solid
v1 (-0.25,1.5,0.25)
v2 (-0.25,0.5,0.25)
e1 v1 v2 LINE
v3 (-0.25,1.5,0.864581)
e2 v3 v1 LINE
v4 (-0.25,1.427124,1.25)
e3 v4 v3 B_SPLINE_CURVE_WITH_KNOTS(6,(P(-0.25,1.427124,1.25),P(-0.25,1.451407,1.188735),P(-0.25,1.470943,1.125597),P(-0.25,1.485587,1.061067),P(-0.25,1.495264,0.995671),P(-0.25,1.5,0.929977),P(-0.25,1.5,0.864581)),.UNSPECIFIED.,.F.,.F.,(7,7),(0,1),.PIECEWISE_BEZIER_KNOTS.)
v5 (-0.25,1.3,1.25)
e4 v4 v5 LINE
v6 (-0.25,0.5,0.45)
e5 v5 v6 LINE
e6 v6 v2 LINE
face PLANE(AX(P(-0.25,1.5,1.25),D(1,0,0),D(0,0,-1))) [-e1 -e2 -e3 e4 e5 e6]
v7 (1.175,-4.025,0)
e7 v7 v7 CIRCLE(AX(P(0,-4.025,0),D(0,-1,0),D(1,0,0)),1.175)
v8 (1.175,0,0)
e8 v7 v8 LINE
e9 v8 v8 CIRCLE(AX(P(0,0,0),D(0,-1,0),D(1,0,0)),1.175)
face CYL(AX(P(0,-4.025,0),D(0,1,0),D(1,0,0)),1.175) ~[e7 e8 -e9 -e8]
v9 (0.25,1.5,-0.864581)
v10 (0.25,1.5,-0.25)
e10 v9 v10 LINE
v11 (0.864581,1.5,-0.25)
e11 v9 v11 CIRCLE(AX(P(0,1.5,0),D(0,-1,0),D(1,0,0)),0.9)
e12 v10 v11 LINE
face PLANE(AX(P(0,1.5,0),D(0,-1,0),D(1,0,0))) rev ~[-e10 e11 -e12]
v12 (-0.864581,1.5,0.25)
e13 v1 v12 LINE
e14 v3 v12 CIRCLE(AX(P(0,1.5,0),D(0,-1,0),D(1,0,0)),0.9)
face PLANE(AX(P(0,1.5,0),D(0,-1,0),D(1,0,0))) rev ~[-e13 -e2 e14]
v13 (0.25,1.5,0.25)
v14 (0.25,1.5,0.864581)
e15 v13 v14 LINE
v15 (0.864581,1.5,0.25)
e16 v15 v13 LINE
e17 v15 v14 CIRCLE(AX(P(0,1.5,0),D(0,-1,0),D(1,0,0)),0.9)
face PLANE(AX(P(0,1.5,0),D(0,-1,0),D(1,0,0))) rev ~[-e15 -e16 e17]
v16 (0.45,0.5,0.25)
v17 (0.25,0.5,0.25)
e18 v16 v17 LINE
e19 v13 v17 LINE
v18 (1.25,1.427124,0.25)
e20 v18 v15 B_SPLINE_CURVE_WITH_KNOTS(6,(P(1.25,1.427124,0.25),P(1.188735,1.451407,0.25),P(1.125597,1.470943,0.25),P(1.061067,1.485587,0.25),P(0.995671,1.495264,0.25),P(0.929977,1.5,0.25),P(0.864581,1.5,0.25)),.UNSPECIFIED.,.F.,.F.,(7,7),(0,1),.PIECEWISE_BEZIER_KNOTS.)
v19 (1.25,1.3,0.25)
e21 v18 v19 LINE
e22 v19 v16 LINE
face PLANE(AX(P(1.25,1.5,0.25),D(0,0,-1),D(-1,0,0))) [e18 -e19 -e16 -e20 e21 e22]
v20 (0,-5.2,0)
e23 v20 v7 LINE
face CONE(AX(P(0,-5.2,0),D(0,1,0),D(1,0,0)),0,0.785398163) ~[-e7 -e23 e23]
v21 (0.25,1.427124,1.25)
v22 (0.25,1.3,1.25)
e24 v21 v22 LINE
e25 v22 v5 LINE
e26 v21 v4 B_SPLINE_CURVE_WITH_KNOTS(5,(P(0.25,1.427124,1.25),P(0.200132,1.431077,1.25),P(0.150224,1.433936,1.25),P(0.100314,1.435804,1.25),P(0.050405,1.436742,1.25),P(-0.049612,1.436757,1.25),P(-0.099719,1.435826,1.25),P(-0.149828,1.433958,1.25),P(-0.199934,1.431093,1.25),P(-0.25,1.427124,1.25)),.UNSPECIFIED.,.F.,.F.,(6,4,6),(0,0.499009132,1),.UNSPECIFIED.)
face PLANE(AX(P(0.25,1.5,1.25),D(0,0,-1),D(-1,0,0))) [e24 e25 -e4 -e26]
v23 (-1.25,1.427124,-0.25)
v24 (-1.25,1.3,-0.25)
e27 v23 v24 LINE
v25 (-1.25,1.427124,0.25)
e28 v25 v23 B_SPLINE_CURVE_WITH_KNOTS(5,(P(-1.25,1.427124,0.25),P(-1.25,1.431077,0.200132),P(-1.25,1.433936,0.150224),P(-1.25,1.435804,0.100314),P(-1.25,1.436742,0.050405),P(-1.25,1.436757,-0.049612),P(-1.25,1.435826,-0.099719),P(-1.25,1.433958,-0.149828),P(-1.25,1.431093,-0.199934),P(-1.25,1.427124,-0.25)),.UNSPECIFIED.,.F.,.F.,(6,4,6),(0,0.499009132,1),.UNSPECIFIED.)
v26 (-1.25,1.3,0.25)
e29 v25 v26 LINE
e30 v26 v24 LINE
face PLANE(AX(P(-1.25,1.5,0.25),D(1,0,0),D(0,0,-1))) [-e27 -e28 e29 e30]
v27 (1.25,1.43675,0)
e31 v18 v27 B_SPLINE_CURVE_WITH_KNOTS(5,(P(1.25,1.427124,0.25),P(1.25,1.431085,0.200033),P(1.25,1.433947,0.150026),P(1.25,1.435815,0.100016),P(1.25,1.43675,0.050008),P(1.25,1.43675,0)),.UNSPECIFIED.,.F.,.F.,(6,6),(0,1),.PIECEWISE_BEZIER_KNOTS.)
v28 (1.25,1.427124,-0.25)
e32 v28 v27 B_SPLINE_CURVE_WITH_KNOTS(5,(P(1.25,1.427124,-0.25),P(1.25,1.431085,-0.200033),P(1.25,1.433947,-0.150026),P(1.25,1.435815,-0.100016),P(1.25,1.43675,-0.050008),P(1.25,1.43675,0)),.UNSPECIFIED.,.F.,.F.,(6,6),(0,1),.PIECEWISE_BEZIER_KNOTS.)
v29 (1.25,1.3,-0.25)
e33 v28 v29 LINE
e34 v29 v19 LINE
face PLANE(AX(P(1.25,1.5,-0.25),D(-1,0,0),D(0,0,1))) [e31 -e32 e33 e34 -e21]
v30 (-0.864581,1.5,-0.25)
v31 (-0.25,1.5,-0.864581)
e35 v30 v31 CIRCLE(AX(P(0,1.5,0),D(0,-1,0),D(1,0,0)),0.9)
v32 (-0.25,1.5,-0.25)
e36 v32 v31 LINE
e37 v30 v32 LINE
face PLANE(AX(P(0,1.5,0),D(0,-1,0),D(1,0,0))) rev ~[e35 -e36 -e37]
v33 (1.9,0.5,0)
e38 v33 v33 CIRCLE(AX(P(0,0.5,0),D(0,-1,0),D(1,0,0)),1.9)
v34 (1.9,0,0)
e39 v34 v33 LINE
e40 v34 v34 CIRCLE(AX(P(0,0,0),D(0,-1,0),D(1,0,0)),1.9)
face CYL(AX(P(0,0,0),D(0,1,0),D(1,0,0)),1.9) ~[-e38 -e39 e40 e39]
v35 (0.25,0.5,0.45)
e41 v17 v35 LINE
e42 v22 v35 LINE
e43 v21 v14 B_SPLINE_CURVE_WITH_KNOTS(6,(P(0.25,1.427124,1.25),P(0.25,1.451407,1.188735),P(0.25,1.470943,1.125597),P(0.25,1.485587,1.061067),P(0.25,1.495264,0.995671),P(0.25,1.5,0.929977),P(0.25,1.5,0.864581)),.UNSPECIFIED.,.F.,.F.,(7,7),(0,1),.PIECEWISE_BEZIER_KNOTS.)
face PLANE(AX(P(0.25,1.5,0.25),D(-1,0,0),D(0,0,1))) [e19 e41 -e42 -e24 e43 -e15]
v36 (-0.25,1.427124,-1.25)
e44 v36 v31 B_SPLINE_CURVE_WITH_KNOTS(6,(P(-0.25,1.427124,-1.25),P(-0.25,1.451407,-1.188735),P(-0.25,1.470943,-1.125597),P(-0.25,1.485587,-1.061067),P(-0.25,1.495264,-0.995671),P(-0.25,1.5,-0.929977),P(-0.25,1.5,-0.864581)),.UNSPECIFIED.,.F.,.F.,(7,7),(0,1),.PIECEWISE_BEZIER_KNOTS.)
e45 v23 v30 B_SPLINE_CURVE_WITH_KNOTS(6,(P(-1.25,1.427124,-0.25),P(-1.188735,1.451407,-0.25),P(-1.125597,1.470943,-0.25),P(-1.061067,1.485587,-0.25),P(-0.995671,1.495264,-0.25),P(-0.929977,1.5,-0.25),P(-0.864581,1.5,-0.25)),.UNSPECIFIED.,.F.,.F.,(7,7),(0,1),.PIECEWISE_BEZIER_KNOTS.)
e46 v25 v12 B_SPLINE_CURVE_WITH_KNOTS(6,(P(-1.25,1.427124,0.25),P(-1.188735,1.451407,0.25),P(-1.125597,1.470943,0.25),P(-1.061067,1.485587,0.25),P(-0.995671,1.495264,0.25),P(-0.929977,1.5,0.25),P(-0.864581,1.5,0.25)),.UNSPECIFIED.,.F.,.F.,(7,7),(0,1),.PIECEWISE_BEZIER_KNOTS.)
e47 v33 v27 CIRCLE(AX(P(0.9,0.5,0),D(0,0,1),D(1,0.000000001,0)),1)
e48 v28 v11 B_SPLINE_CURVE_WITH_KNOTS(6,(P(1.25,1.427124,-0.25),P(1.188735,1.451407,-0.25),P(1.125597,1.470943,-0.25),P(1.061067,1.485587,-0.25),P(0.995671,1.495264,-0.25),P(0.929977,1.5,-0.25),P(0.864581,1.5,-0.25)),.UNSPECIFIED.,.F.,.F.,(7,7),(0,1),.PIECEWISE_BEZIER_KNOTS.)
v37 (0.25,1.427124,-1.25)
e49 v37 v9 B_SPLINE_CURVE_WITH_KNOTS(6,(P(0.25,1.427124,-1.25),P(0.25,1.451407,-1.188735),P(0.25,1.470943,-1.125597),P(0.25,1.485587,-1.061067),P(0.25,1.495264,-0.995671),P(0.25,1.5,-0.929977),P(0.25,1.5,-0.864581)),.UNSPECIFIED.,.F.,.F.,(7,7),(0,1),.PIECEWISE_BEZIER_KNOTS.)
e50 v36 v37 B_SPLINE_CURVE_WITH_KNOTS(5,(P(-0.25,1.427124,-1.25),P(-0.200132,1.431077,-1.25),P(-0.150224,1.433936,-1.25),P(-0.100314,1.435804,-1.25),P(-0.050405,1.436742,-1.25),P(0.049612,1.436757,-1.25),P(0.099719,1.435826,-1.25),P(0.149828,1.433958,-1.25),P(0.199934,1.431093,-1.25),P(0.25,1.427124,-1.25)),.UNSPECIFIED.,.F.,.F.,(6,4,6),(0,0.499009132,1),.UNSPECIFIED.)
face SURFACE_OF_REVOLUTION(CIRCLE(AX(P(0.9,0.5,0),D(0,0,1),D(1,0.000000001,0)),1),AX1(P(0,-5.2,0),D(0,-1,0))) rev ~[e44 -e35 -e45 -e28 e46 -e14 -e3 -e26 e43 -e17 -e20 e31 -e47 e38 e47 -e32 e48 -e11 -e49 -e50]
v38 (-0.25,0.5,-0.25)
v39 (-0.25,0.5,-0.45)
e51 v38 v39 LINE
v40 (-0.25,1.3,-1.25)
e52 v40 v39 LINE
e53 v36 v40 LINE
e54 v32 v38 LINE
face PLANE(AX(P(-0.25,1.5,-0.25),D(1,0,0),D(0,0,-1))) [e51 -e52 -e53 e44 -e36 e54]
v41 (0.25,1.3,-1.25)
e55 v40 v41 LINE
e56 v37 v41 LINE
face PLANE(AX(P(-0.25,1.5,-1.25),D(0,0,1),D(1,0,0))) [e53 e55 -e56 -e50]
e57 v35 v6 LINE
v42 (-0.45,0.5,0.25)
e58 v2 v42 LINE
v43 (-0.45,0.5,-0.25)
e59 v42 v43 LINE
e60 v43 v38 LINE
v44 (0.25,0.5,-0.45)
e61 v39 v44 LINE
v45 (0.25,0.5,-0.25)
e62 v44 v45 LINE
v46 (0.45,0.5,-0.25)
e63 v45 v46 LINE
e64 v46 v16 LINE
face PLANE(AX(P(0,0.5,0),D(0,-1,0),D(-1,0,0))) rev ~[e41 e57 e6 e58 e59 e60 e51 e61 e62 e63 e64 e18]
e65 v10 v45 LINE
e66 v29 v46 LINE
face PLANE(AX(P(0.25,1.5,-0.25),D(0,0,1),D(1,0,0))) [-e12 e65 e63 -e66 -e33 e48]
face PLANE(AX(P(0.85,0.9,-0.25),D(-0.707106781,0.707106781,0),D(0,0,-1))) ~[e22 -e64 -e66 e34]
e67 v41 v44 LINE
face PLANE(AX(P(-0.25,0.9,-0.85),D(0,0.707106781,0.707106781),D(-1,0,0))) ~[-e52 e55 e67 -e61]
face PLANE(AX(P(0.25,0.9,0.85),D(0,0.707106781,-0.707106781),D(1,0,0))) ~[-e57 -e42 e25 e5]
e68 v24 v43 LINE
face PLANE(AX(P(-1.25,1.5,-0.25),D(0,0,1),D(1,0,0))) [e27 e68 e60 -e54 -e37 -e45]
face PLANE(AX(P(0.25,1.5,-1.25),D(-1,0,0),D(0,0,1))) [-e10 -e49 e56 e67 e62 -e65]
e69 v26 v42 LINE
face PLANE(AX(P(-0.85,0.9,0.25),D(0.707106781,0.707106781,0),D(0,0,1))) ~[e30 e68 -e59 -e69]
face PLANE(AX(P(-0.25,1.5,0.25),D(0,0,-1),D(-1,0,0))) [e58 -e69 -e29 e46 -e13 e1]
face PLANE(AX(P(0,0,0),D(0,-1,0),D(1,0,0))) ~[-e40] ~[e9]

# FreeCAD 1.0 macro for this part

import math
import FreeCAD as App
import Part
import Sketcher
Q = App.Units.Quantity


def edges_at(feature, points):
    """Names of the edges that pass closest to the given points."""
    edges = feature.Shape.Edges
    near = lambda p: min(range(len(edges)), key=lambda i: edges[i].distToShape(Part.Vertex(*p))[0])
    return sorted({f"Edge{near(p) + 1}" for p in points})

doc = App.newDocument("Part")
params = doc.addObject("Spreadsheet::Sheet", "Params")
for row, (alias, value) in enumerate([
    ("sketch1_radius", "1 mm"),
    ("sketch1_width", "0.9 mm"),
    ("sketch1_height", "0.5 mm"),
    ("sketch1_height2", "6.7 mm"),
    ("revolution_angle", "360 deg"),
    ("sketch2_width", "1 mm"),
    ("sketch2_width2", "0.5 mm"),
    ("pocket1_length", "1 mm"),
    ("chamfer_size", "0.8 mm"),
], start=1):
    params.set(f"A{row}", alias)
    params.set(f"B{row}", "=" + value)
    params.setAlias(f"B{row}", alias)

body = doc.addObject("PartDesign::Body", "Body")

sketch1 = doc.addObject("Sketcher::SketchObject", "Sketch")
body.addObject(sketch1)
sketch1.AttachmentSupport = (doc.XY_Plane, [""])
sketch1.MapMode = "FlatFace"
sketch1.addGeometry(Part.LineSegment(App.Vector(1.2, 0, 0), App.Vector(1.9, 0, 0)), False)
sketch1.addGeometry(Part.LineSegment(App.Vector(1.9, 0, 0), App.Vector(1.9, 0.5, 0)), False)
sketch1.addGeometry(Part.ArcOfCircle(Part.Circle(App.Vector(0.9, 0.5, 0), App.Vector(0, 0, 1), 1), math.radians(0), math.radians(90)), False)
sketch1.addGeometry(Part.LineSegment(App.Vector(0.9, 1.5, 0), App.Vector(0, 1.5, 0)), False)
sketch1.addGeometry(Part.LineSegment(App.Vector(0, 1.5, 0), App.Vector(0, -5.2, 0)), False)
sketch1.addGeometry(Part.LineSegment(App.Vector(0, -5.2, 0), App.Vector(1.2, -4, 0)), False)
sketch1.addGeometry(Part.LineSegment(App.Vector(1.2, -4, 0), App.Vector(1.2, 0, 0)), False)
sketch1.addConstraint(Sketcher.Constraint("Coincident", 0, 2, 1, 1))
sketch1.addConstraint(Sketcher.Constraint("Tangent", 1, 2, 2, 1))
sketch1.addConstraint(Sketcher.Constraint("Tangent", 2, 2, 3, 1))
sketch1.addConstraint(Sketcher.Constraint("Coincident", 3, 2, 4, 1))
sketch1.addConstraint(Sketcher.Constraint("Coincident", 4, 2, 5, 1))
sketch1.addConstraint(Sketcher.Constraint("Coincident", 5, 2, 6, 1))
sketch1.addConstraint(Sketcher.Constraint("Coincident", 6, 2, 0, 1))
sketch1.addConstraint(Sketcher.Constraint("Horizontal", 0))
sketch1.addConstraint(Sketcher.Constraint("Vertical", 1))
sketch1.addConstraint(Sketcher.Constraint("Horizontal", 3))
sketch1.addConstraint(Sketcher.Constraint("Vertical", 4))
sketch1.addConstraint(Sketcher.Constraint("Vertical", 6))
sketch1.addConstraint(Sketcher.Constraint("PointOnObject", 0, 2, -1))
sketch1.addConstraint(Sketcher.Constraint("PointOnObject", 3, 2, -2))
sketch1.addConstraint(Sketcher.Constraint("Radius", 2, Q("1 mm")))
sketch1.addConstraint(Sketcher.Constraint("Angle", 5, Q("45 deg")))
sketch1.addConstraint(Sketcher.Constraint("DistanceX", 3, 2, 3, 1, Q("0.9 mm")))
sketch1.addConstraint(Sketcher.Constraint("DistanceY", 1, 1, 1, 2, Q("0.5 mm")))
sketch1.addConstraint(Sketcher.Constraint("DistanceY", 4, 2, 4, 1, Q("6.7 mm")))
sketch1.addConstraint(Sketcher.Constraint("DistanceX", 0, 1, 0, 2, Q("0.725 mm")))
sketch1.setExpression("Constraints[14]", "Params.sketch1_radius")
sketch1.setExpression("Constraints[16]", "Params.sketch1_width")
sketch1.setExpression("Constraints[17]", "Params.sketch1_height")
sketch1.setExpression("Constraints[18]", "Params.sketch1_height2")
revolution = doc.addObject("PartDesign::Revolution", "Revolution")
body.addObject(revolution)
revolution.Profile = sketch1
revolution.ReferenceAxis = (sketch1, ["V_Axis"])
revolution.setExpression("Angle", "Params.revolution_angle")

sketch2 = doc.addObject("Sketcher::SketchObject", "Sketch001")
body.addObject(sketch2)
sketch2.AttachmentSupport = (doc.XZ_Plane, [""])
sketch2.MapMode = "FlatFace"
sketch2.AttachmentOffset = App.Placement(App.Vector(0, 0, -1.5), App.Rotation())
sketch2.addGeometry(Part.LineSegment(App.Vector(1.2, -0.2, 0), App.Vector(0.2, -0.2, 0)), False)
sketch2.addGeometry(Part.LineSegment(App.Vector(0.2, -0.2, 0), App.Vector(0.2, -1.2, 0)), False)
sketch2.addGeometry(Part.LineSegment(App.Vector(0.2, -1.2, 0), App.Vector(-0.2, -1.2, 0)), False)
sketch2.addGeometry(Part.LineSegment(App.Vector(-0.2, -1.2, 0), App.Vector(-0.2, -0.2, 0)), False)
sketch2.addGeometry(Part.LineSegment(App.Vector(-0.2, -0.2, 0), App.Vector(-1.2, -0.2, 0)), False)
sketch2.addGeometry(Part.LineSegment(App.Vector(-1.2, -0.2, 0), App.Vector(-1.2, 0.2, 0)), False)
sketch2.addGeometry(Part.LineSegment(App.Vector(-1.2, 0.2, 0), App.Vector(-0.2, 0.2, 0)), False)
sketch2.addGeometry(Part.LineSegment(App.Vector(-0.2, 0.2, 0), App.Vector(-0.2, 1.2, 0)), False)
sketch2.addGeometry(Part.LineSegment(App.Vector(-0.2, 1.2, 0), App.Vector(0.2, 1.2, 0)), False)
sketch2.addGeometry(Part.LineSegment(App.Vector(0.2, 1.2, 0), App.Vector(0.2, 0.2, 0)), False)
sketch2.addGeometry(Part.LineSegment(App.Vector(0.2, 0.2, 0), App.Vector(1.2, 0.2, 0)), False)
sketch2.addGeometry(Part.LineSegment(App.Vector(1.2, 0.2, 0), App.Vector(1.2, -0.2, 0)), False)
sketch2.addConstraint(Sketcher.Constraint("Coincident", 0, 2, 1, 1))
sketch2.addConstraint(Sketcher.Constraint("Coincident", 1, 2, 2, 1))
sketch2.addConstraint(Sketcher.Constraint("Coincident", 2, 2, 3, 1))
sketch2.addConstraint(Sketcher.Constraint("Coincident", 3, 2, 4, 1))
sketch2.addConstraint(Sketcher.Constraint("Coincident", 4, 2, 5, 1))
sketch2.addConstraint(Sketcher.Constraint("Coincident", 5, 2, 6, 1))
sketch2.addConstraint(Sketcher.Constraint("Coincident", 6, 2, 7, 1))
sketch2.addConstraint(Sketcher.Constraint("Coincident", 7, 2, 8, 1))
sketch2.addConstraint(Sketcher.Constraint("Coincident", 8, 2, 9, 1))
sketch2.addConstraint(Sketcher.Constraint("Coincident", 9, 2, 10, 1))
sketch2.addConstraint(Sketcher.Constraint("Coincident", 10, 2, 11, 1))
sketch2.addConstraint(Sketcher.Constraint("Coincident", 11, 2, 0, 1))
sketch2.addConstraint(Sketcher.Constraint("Horizontal", 0))
sketch2.addConstraint(Sketcher.Constraint("Vertical", 1))
sketch2.addConstraint(Sketcher.Constraint("Horizontal", 2))
sketch2.addConstraint(Sketcher.Constraint("Vertical", 3))
sketch2.addConstraint(Sketcher.Constraint("Horizontal", 4))
sketch2.addConstraint(Sketcher.Constraint("Vertical", 5))
sketch2.addConstraint(Sketcher.Constraint("Horizontal", 6))
sketch2.addConstraint(Sketcher.Constraint("Vertical", 7))
sketch2.addConstraint(Sketcher.Constraint("Horizontal", 8))
sketch2.addConstraint(Sketcher.Constraint("Vertical", 9))
sketch2.addConstraint(Sketcher.Constraint("Horizontal", 10))
sketch2.addConstraint(Sketcher.Constraint("Vertical", 11))
sketch2.addConstraint(Sketcher.Constraint("Symmetric", 0, 2, 6, 2, -1, 1))
sketch2.addConstraint(Sketcher.Constraint("Symmetric", 2, 2, 8, 2, -1, 1))
sketch2.addConstraint(Sketcher.Constraint("Symmetric", 4, 2, 10, 2, -1, 1))
sketch2.addConstraint(Sketcher.Constraint("Symmetric", 0, 2, 3, 2, -2))
sketch2.addConstraint(Sketcher.Constraint("Equal", 10, 1))
sketch2.addConstraint(Sketcher.Constraint("Equal", 8, 5))
sketch2.addConstraint(Sketcher.Constraint("DistanceX", 0, 2, 0, 1, Q("1 mm")))
sketch2.addConstraint(Sketcher.Constraint("DistanceX", 2, 2, 2, 1, Q("0.5 mm")))
sketch2.setExpression("Constraints[30]", "Params.sketch2_width")
sketch2.setExpression("Constraints[31]", "Params.sketch2_width2")
pocket1 = doc.addObject("PartDesign::Pocket", "Pocket")
body.addObject(pocket1)
pocket1.Profile = sketch2
pocket1.setExpression("Length", "Params.pocket1_length")
pocket1.Reversed = True
doc.recompute()

chamfer = doc.addObject("PartDesign::Chamfer", "Chamfer")
body.addObject(chamfer)
chamfer.Base = (pocket1, edges_at(pocket1, [
    (-1.25, 0.5, 0),
    (0, 0.5, -1.25),
    (1.25, 0.5, 0),
    (0, 0.5, 1.25),
]))
chamfer.setExpression("Size", "Params.chamfer_size")

doc.recompute()
